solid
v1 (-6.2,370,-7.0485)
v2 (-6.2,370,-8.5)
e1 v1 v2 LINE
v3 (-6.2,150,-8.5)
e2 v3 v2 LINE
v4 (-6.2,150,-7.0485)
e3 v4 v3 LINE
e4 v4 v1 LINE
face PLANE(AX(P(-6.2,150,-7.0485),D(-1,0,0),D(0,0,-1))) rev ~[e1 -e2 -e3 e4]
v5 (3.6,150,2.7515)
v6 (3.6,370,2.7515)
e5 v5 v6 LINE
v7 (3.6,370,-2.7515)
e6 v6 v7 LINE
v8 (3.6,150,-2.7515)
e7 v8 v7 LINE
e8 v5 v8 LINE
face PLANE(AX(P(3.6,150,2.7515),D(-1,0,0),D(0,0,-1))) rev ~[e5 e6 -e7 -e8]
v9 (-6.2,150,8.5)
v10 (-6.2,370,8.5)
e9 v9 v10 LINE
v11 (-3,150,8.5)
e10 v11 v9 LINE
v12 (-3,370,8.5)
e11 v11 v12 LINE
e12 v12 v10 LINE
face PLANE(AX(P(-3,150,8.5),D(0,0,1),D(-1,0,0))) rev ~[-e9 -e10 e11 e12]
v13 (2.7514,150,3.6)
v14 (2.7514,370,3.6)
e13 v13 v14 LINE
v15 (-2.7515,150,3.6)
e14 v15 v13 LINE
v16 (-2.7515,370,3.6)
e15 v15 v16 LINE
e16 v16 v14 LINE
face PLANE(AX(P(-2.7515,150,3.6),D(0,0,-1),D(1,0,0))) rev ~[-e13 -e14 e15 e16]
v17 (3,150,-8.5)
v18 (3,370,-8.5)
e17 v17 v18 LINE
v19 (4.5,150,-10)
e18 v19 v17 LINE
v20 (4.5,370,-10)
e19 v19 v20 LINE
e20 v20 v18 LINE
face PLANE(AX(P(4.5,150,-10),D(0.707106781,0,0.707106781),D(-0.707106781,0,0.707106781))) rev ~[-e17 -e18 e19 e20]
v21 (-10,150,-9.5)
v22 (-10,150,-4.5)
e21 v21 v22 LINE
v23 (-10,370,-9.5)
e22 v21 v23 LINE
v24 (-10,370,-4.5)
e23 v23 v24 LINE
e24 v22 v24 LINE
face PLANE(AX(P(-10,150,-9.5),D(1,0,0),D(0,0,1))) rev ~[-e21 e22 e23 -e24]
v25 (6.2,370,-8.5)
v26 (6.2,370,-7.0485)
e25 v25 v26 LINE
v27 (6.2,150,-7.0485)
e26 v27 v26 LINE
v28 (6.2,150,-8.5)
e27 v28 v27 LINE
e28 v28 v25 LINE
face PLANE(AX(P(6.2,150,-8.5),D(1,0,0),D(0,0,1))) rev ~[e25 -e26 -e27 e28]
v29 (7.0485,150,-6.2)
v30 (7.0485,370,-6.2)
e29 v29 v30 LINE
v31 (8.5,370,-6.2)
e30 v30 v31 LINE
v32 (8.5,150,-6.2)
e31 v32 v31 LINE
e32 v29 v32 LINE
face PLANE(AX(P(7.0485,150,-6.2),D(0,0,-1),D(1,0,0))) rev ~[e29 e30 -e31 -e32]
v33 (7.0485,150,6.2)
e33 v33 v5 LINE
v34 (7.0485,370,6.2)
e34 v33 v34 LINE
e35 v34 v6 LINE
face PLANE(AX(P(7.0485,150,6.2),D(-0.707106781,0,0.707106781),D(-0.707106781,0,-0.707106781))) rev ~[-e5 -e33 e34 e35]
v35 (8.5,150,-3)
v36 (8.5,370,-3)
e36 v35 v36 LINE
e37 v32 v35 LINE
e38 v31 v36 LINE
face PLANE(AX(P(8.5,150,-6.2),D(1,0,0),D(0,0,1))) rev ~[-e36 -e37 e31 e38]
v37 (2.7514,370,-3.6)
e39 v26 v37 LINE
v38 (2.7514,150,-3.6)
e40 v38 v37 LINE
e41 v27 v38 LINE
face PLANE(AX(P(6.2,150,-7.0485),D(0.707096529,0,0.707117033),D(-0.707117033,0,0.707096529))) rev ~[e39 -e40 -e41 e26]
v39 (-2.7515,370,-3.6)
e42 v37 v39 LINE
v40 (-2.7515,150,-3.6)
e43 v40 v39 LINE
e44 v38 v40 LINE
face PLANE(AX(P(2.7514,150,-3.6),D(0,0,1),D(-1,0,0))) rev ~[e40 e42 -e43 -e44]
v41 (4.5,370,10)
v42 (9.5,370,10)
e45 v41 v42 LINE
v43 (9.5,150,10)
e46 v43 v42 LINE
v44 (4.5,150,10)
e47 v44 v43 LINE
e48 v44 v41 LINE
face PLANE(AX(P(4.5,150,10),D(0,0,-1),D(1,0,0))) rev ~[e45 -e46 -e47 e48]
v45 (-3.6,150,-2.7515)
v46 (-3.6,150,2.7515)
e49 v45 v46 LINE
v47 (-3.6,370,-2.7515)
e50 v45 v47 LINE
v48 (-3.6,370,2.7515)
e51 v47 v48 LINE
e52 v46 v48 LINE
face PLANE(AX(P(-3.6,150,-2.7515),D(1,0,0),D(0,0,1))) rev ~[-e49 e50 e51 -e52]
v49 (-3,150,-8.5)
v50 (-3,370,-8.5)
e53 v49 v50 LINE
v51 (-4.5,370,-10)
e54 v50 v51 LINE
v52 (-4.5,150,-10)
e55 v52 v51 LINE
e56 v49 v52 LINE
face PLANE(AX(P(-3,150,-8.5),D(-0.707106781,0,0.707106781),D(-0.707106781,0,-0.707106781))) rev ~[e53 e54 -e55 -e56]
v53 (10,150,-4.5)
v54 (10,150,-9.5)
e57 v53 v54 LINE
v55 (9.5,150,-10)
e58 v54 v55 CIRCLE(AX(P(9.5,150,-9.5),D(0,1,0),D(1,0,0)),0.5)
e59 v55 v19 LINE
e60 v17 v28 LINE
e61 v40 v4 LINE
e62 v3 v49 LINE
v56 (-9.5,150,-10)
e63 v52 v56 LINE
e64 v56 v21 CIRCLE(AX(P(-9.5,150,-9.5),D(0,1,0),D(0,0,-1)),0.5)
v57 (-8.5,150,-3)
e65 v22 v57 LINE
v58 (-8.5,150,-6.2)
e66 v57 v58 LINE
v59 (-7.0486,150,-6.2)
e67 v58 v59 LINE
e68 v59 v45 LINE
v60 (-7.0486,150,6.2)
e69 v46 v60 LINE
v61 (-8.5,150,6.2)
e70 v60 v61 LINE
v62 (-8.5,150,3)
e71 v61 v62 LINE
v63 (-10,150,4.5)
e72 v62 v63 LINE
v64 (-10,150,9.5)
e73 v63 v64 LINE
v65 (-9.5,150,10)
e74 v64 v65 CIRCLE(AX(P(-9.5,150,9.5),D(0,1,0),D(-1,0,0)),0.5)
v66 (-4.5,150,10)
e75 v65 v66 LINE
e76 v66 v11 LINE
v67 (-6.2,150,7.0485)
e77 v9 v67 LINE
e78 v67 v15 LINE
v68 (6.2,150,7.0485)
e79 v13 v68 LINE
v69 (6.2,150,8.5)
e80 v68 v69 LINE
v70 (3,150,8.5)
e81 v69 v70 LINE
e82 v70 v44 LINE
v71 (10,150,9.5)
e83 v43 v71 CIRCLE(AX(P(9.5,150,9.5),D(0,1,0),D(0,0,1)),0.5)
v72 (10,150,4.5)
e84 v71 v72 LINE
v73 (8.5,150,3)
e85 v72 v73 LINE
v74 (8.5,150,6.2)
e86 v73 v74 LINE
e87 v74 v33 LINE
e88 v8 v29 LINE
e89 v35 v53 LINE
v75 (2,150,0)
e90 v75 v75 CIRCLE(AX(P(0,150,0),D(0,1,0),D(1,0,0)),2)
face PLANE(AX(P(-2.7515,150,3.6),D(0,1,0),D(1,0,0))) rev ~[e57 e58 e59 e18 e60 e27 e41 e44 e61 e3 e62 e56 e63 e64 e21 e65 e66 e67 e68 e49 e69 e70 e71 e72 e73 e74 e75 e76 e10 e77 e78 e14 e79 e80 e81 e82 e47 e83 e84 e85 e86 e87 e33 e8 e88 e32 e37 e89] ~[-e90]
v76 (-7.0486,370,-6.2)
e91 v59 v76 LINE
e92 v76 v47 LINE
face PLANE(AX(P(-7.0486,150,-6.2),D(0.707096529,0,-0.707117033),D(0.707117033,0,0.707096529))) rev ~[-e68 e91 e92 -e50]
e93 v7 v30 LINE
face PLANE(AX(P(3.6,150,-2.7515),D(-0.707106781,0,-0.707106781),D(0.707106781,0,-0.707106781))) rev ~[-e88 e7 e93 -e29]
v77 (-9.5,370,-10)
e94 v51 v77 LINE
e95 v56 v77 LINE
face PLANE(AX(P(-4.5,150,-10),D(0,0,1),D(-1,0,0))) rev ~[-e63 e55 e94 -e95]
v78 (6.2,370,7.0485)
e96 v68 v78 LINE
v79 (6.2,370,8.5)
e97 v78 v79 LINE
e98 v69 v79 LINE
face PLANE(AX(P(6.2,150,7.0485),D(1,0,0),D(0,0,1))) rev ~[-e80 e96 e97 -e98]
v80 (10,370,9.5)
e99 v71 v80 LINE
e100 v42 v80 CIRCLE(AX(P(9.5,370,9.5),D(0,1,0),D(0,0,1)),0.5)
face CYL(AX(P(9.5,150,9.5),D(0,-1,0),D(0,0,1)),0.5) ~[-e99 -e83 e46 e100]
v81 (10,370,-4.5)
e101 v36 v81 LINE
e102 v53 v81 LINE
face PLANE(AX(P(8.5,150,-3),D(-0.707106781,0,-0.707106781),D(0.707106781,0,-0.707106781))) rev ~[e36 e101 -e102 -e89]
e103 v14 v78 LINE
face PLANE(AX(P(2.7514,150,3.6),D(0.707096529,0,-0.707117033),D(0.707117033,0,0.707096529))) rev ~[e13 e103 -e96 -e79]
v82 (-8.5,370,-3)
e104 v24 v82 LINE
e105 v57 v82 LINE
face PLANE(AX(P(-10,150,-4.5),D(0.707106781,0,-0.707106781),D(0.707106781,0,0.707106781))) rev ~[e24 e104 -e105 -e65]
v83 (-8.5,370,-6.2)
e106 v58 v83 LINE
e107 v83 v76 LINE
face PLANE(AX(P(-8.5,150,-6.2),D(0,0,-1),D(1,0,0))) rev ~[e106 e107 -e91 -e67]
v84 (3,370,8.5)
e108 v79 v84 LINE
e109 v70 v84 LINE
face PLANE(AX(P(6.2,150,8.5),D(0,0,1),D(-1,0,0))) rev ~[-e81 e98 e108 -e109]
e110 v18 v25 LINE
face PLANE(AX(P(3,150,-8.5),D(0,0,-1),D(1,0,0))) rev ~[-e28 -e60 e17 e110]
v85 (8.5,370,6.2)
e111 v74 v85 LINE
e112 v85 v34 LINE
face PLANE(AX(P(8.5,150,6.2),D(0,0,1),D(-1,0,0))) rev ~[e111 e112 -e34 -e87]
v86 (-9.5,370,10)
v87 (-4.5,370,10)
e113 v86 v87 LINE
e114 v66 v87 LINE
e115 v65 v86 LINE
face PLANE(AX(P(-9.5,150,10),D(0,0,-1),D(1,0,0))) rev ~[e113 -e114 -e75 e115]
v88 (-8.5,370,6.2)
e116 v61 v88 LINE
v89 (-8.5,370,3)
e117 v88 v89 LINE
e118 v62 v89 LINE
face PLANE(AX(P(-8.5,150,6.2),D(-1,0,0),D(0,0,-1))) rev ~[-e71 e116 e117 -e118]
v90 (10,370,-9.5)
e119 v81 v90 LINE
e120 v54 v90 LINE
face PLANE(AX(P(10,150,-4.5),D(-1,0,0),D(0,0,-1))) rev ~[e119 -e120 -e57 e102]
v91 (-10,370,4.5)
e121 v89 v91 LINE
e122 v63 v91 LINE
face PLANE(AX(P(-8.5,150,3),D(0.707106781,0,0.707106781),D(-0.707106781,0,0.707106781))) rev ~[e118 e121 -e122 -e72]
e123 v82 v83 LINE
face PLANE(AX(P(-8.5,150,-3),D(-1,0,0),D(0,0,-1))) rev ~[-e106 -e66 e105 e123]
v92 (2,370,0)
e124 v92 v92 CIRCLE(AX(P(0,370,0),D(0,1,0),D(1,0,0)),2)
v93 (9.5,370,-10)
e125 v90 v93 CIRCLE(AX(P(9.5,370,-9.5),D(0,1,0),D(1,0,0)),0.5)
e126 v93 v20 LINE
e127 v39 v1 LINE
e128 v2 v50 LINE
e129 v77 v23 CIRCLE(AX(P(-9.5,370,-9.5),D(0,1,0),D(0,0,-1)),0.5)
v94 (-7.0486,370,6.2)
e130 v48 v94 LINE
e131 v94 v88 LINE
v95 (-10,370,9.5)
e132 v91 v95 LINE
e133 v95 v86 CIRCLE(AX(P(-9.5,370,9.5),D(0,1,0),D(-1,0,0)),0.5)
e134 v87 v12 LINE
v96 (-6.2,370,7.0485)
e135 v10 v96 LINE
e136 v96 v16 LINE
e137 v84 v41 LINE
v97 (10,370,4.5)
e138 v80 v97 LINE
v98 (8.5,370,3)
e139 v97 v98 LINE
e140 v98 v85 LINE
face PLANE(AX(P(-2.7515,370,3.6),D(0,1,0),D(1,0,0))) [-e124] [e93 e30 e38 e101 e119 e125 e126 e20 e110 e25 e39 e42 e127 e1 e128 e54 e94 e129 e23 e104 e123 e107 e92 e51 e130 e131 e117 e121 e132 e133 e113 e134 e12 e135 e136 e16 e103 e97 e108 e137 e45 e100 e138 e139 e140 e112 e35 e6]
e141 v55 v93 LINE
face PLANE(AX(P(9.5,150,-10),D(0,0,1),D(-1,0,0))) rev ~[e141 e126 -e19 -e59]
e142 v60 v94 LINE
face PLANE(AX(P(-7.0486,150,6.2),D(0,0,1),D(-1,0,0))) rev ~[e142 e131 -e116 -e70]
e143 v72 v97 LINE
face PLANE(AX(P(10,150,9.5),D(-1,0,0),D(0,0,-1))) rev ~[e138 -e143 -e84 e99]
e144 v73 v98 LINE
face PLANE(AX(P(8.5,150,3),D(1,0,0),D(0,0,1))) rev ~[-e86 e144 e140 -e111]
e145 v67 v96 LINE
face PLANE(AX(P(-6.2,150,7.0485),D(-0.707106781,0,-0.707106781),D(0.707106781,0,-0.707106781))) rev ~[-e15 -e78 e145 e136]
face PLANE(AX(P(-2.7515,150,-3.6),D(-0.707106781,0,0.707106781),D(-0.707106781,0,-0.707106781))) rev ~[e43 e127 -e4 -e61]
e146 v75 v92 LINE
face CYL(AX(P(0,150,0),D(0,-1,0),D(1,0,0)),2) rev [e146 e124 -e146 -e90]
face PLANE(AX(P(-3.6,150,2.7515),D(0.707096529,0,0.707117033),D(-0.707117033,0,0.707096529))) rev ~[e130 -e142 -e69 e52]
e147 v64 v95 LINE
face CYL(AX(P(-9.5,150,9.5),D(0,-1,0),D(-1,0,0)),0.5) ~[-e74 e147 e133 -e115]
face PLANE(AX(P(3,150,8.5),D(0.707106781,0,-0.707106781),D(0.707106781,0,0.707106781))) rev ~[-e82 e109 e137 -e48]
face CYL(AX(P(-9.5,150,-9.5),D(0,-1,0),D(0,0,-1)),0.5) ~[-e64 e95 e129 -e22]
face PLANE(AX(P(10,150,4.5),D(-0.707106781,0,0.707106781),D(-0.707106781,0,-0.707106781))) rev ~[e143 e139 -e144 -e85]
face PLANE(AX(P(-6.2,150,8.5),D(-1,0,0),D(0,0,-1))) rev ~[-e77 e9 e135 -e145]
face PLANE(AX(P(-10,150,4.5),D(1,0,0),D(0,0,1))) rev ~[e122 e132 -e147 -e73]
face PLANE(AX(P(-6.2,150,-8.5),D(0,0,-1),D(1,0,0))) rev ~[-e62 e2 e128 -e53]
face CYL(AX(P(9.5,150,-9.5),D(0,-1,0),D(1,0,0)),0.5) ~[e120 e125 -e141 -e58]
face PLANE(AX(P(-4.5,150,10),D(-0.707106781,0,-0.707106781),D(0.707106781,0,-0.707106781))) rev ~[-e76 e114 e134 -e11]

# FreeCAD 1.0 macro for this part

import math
import FreeCAD as App
import Part
import Sketcher
from FreeCAD import Vector
Q = App.Units.Quantity

doc = App.newDocument("Part")
params = doc.addObject("Spreadsheet::Sheet", "Params")
for row, (alias, value) in enumerate([
    ("sketch1_diameter", "4 mm"),
    ("sketch1_radius", "0.5 mm"),
    ("sketch1_width", "5 mm"),
    ("sketch1_width2", "3.2 mm"),
    ("pad1_length", "220 mm"),
], start=1):
    params.set(f"A{row}", alias)
    params.set(f"B{row}", "=" + value)
    params.setAlias(f"B{row}", alias)

body = doc.addObject("PartDesign::Body", "Body")

# Sketch on XZ plane
sketch1 = body.newObject("Sketcher::SketchObject", "Sketch")
sketch1.AttachmentSupport = (doc.getObject("XZ_Plane"), [""])
sketch1.MapMode = "FlatFace"
sketch1.AttachmentOffset = App.Placement(Vector(0, 0, -150), App.Rotation())
sketch1.addGeometry([
    Part.LineSegment(Vector(-4.5, -10, 0), Vector(-9.5, -10, 0)),  # 0
    Part.ArcOfCircle(Part.Circle(Vector(-9.5, -9.5, 0), Vector(0, 0, 1), 0.5), math.radians(180), math.radians(270)),  # 1
    Part.LineSegment(Vector(-10, -9.5, 0), Vector(-10, -4.5, 0)),  # 2
    Part.LineSegment(Vector(-10, -4.5, 0), Vector(-8.5, -3, 0)),  # 3
    Part.LineSegment(Vector(-8.5, -3, 0), Vector(-8.5, -6.2, 0)),  # 4
    Part.LineSegment(Vector(-8.5, -6.2, 0), Vector(-7, -6.2, 0)),  # 5
    Part.LineSegment(Vector(-7, -6.2, 0), Vector(-3.6, -2.8, 0)),  # 6
    Part.LineSegment(Vector(-3.6, -2.8, 0), Vector(-3.6, 2.8, 0)),  # 7
    Part.LineSegment(Vector(-3.6, 2.8, 0), Vector(-7, 6.2, 0)),  # 8
    Part.LineSegment(Vector(-7, 6.2, 0), Vector(-8.5, 6.2, 0)),  # 9
    Part.LineSegment(Vector(-8.5, 6.2, 0), Vector(-8.5, 3, 0)),  # 10
    Part.LineSegment(Vector(-8.5, 3, 0), Vector(-10, 4.5, 0)),  # 11
    Part.LineSegment(Vector(-10, 4.5, 0), Vector(-10, 9.5, 0)),  # 12
    Part.ArcOfCircle(Part.Circle(Vector(-9.5, 9.5, 0), Vector(0, 0, 1), 0.5), math.radians(90), math.radians(180)),  # 13
    Part.LineSegment(Vector(-9.5, 10, 0), Vector(-4.5, 10, 0)),  # 14
    Part.LineSegment(Vector(-4.5, 10, 0), Vector(-3, 8.5, 0)),  # 15
    Part.LineSegment(Vector(-3, 8.5, 0), Vector(-6.2, 8.5, 0)),  # 16
    Part.LineSegment(Vector(-6.2, 8.5, 0), Vector(-6.2, 7, 0)),  # 17
    Part.LineSegment(Vector(-6.2, 7, 0), Vector(-2.8, 3.6, 0)),  # 18
    Part.LineSegment(Vector(-2.8, 3.6, 0), Vector(2.8, 3.6, 0)),  # 19
    Part.LineSegment(Vector(2.8, 3.6, 0), Vector(6.2, 7, 0)),  # 20
    Part.LineSegment(Vector(6.2, 7, 0), Vector(6.2, 8.5, 0)),  # 21
    Part.LineSegment(Vector(6.2, 8.5, 0), Vector(3, 8.5, 0)),  # 22
    Part.LineSegment(Vector(3, 8.5, 0), Vector(4.5, 10, 0)),  # 23
    Part.LineSegment(Vector(4.5, 10, 0), Vector(9.5, 10, 0)),  # 24
    Part.ArcOfCircle(Part.Circle(Vector(9.5, 9.5, 0), Vector(0, 0, 1), 0.5), math.radians(0), math.radians(90)),  # 25
    Part.LineSegment(Vector(10, 9.5, 0), Vector(10, 4.5, 0)),  # 26
    Part.LineSegment(Vector(10, 4.5, 0), Vector(8.5, 3, 0)),  # 27
    Part.LineSegment(Vector(8.5, 3, 0), Vector(8.5, 6.2, 0)),  # 28
    Part.LineSegment(Vector(8.5, 6.2, 0), Vector(7, 6.2, 0)),  # 29
    Part.LineSegment(Vector(7, 6.2, 0), Vector(3.6, 2.8, 0)),  # 30
    Part.LineSegment(Vector(3.6, 2.8, 0), Vector(3.6, -2.8, 0)),  # 31
    Part.LineSegment(Vector(3.6, -2.8, 0), Vector(7, -6.2, 0)),  # 32
    Part.LineSegment(Vector(7, -6.2, 0), Vector(8.5, -6.2, 0)),  # 33
    Part.LineSegment(Vector(8.5, -6.2, 0), Vector(8.5, -3, 0)),  # 34
    Part.LineSegment(Vector(8.5, -3, 0), Vector(10, -4.5, 0)),  # 35
    Part.LineSegment(Vector(10, -4.5, 0), Vector(10, -9.5, 0)),  # 36
    Part.ArcOfCircle(Part.Circle(Vector(9.5, -9.5, 0), Vector(0, 0, 1), 0.5), math.radians(-90), math.radians(0)),  # 37
    Part.LineSegment(Vector(9.5, -10, 0), Vector(4.5, -10, 0)),  # 38
    Part.LineSegment(Vector(4.5, -10, 0), Vector(3, -8.5, 0)),  # 39
    Part.LineSegment(Vector(3, -8.5, 0), Vector(6.2, -8.5, 0)),  # 40
    Part.LineSegment(Vector(6.2, -8.5, 0), Vector(6.2, -7, 0)),  # 41
    Part.LineSegment(Vector(6.2, -7, 0), Vector(2.8, -3.6, 0)),  # 42
    Part.LineSegment(Vector(2.8, -3.6, 0), Vector(-2.8, -3.6, 0)),  # 43
    Part.LineSegment(Vector(-2.8, -3.6, 0), Vector(-6.2, -7, 0)),  # 44
    Part.LineSegment(Vector(-6.2, -7, 0), Vector(-6.2, -8.5, 0)),  # 45
    Part.LineSegment(Vector(-6.2, -8.5, 0), Vector(-3, -8.5, 0)),  # 46
    Part.LineSegment(Vector(-3, -8.5, 0), Vector(-4.5, -10, 0)),  # 47
    Part.Circle(Vector(0, 0, 0), Vector(0, 0, 1), 2),  # 48
], False)
sketch1.addConstraint([
    Sketcher.Constraint("Tangent", 0, 2, 1, 2),
    Sketcher.Constraint("Tangent", 1, 1, 2, 1),
    Sketcher.Constraint("Coincident", 2, 2, 3, 1),
    Sketcher.Constraint("Coincident", 3, 2, 4, 1),
    Sketcher.Constraint("Coincident", 4, 2, 5, 1),
    Sketcher.Constraint("Coincident", 5, 2, 6, 1),
    Sketcher.Constraint("Coincident", 6, 2, 7, 1),
    Sketcher.Constraint("Coincident", 7, 2, 8, 1),
    Sketcher.Constraint("Coincident", 8, 2, 9, 1),
    Sketcher.Constraint("Coincident", 9, 2, 10, 1),
    Sketcher.Constraint("Coincident", 10, 2, 11, 1),
    Sketcher.Constraint("Coincident", 11, 2, 12, 1),
    Sketcher.Constraint("Tangent", 12, 2, 13, 2),
    Sketcher.Constraint("Tangent", 13, 1, 14, 1),
    Sketcher.Constraint("Coincident", 14, 2, 15, 1),
    Sketcher.Constraint("Coincident", 15, 2, 16, 1),
    Sketcher.Constraint("Coincident", 16, 2, 17, 1),
    Sketcher.Constraint("Coincident", 17, 2, 18, 1),
    Sketcher.Constraint("Coincident", 18, 2, 19, 1),
    Sketcher.Constraint("Coincident", 19, 2, 20, 1),
    Sketcher.Constraint("Coincident", 20, 2, 21, 1),
    Sketcher.Constraint("Coincident", 21, 2, 22, 1),
    Sketcher.Constraint("Coincident", 22, 2, 23, 1),
    Sketcher.Constraint("Coincident", 23, 2, 24, 1),
    Sketcher.Constraint("Tangent", 24, 2, 25, 2),
    Sketcher.Constraint("Tangent", 25, 1, 26, 1),
    Sketcher.Constraint("Coincident", 26, 2, 27, 1),
    Sketcher.Constraint("Coincident", 27, 2, 28, 1),
    Sketcher.Constraint("Coincident", 28, 2, 29, 1),
    Sketcher.Constraint("Coincident", 29, 2, 30, 1),
    Sketcher.Constraint("Coincident", 30, 2, 31, 1),
    Sketcher.Constraint("Coincident", 31, 2, 32, 1),
    Sketcher.Constraint("Coincident", 32, 2, 33, 1),
    Sketcher.Constraint("Coincident", 33, 2, 34, 1),
    Sketcher.Constraint("Coincident", 34, 2, 35, 1),
    Sketcher.Constraint("Coincident", 35, 2, 36, 1),
    Sketcher.Constraint("Tangent", 36, 2, 37, 2),
    Sketcher.Constraint("Tangent", 37, 1, 38, 1),
    Sketcher.Constraint("Coincident", 38, 2, 39, 1),
    Sketcher.Constraint("Coincident", 39, 2, 40, 1),
    Sketcher.Constraint("Coincident", 40, 2, 41, 1),
    Sketcher.Constraint("Coincident", 41, 2, 42, 1),
    Sketcher.Constraint("Coincident", 42, 2, 43, 1),
    Sketcher.Constraint("Coincident", 43, 2, 44, 1),
    Sketcher.Constraint("Coincident", 44, 2, 45, 1),
    Sketcher.Constraint("Coincident", 45, 2, 46, 1),
    Sketcher.Constraint("Coincident", 46, 2, 47, 1),
    Sketcher.Constraint("Coincident", 47, 2, 0, 1),
    Sketcher.Constraint("Horizontal", 0),
    Sketcher.Constraint("Vertical", 2),
    Sketcher.Constraint("Vertical", 4),
    Sketcher.Constraint("Horizontal", 5),
    Sketcher.Constraint("Vertical", 7),
    Sketcher.Constraint("Horizontal", 9),
    Sketcher.Constraint("Vertical", 10),
    Sketcher.Constraint("Vertical", 12),
    Sketcher.Constraint("Horizontal", 14),
    Sketcher.Constraint("Horizontal", 16),
    Sketcher.Constraint("Vertical", 17),
    Sketcher.Constraint("Horizontal", 19),
    Sketcher.Constraint("Vertical", 21),
    Sketcher.Constraint("Horizontal", 22),
    Sketcher.Constraint("Horizontal", 24),
    Sketcher.Constraint("Vertical", 26),
    Sketcher.Constraint("Vertical", 28),
    Sketcher.Constraint("Horizontal", 29),
    Sketcher.Constraint("Vertical", 31),
    Sketcher.Constraint("Horizontal", 33),
    Sketcher.Constraint("Vertical", 34),
    Sketcher.Constraint("Vertical", 36),
    Sketcher.Constraint("Horizontal", 38),
    Sketcher.Constraint("Horizontal", 40),
    Sketcher.Constraint("Vertical", 41),
    Sketcher.Constraint("Horizontal", 43),
    Sketcher.Constraint("Vertical", 45),
    Sketcher.Constraint("Horizontal", 46),
    Sketcher.Constraint("Coincident", 48, 3, -1, 1),
    Sketcher.Constraint("Equal", 1, 13),
    Sketcher.Constraint("Equal", 13, 25),
    Sketcher.Constraint("Equal", 25, 37),
    Sketcher.Constraint("Symmetric", 1, 3, 25, 3, -1, 1),
    Sketcher.Constraint("Symmetric", 13, 3, 37, 3, -1, 1),
    Sketcher.Constraint("Symmetric", 3, 2, 27, 2, -1, 1),
    Sketcher.Constraint("Symmetric", 5, 2, 29, 2, -1, 1),
    Sketcher.Constraint("Symmetric", 6, 2, 30, 2, -1, 1),
    Sketcher.Constraint("Symmetric", 8, 2, 32, 2, -1, 1),
    Sketcher.Constraint("Symmetric", 10, 2, 34, 2, -1, 1),
    Sketcher.Constraint("Symmetric", 15, 2, 39, 2, -1, 1),
    Sketcher.Constraint("Symmetric", 17, 2, 41, 2, -1, 1),
    Sketcher.Constraint("Symmetric", 18, 2, 42, 2, -1, 1),
    Sketcher.Constraint("Symmetric", 20, 2, 44, 2, -1, 1),
    Sketcher.Constraint("Symmetric", 22, 2, 46, 2, -1, 1),
    Sketcher.Constraint("Symmetric", 13, 3, 25, 3, -2),
    Sketcher.Constraint("Symmetric", 17, 2, 20, 2, -2),
    Sketcher.Constraint("Symmetric", 15, 2, 22, 2, -2),
    Sketcher.Constraint("Symmetric", 10, 2, 27, 2, -2),
    Sketcher.Constraint("Symmetric", 8, 2, 29, 2, -2),
    Sketcher.Constraint("Parallel", 3, 6),
    Sketcher.Constraint("Perpendicular", 6, 8),
    Sketcher.Constraint("Parallel", 8, 11),
    Sketcher.Constraint("Parallel", 11, 15),
    Sketcher.Constraint("Parallel", 15, 18),
    Sketcher.Constraint("Perpendicular", 18, 20),
    Sketcher.Constraint("Parallel", 20, 23),
    Sketcher.Constraint("Parallel", 23, 27),
    Sketcher.Constraint("Perpendicular", 30, 32),
    Sketcher.Constraint("Parallel", 32, 35),
    Sketcher.Constraint("Parallel", 35, 39),
    Sketcher.Constraint("Perpendicular", 42, 44),
    Sketcher.Constraint("Parallel", 44, 47),
    Sketcher.Constraint("Horizontal", 11, 2, 26, 2),
    Sketcher.Constraint("Equal", 38, 2),
    Sketcher.Constraint("Equal", 46, 4),
    Sketcher.Constraint("Equal", 43, 7),
    Sketcher.Constraint("Equal", 33, 17),
    Sketcher.Constraint("Equal", 11, 15),
    Sketcher.Constraint("Equal", 8, 18),
    Sketcher.Constraint("Diameter", 48, Q("4 mm")),
    Sketcher.Constraint("Radius", 1, Q("0.5 mm")),
    Sketcher.Constraint("DistanceX", 0, 2, 0, 1, Q("5 mm")),
    Sketcher.Constraint("DistanceX", 16, 2, 16, 1, Q("3.2 mm")),
    Sketcher.Constraint("DistanceY", 0, 2, -1, 1, Q("10 mm")),
    Sketcher.Constraint("DistanceY", 3, 2, -1, 1, Q("3 mm")),
    Sketcher.Constraint("DistanceX", 6, 2, -1, 1, Q("3.6 mm")),
    Sketcher.Constraint("DistanceX", 19, 1, 19, 2, Q("5.503 mm")),
])
sketch1.setExpression("Constraints[117]", "Params.sketch1_diameter")
sketch1.setExpression("Constraints[118]", "Params.sketch1_radius")
sketch1.setExpression("Constraints[119]", "Params.sketch1_width")
sketch1.setExpression("Constraints[120]", "Params.sketch1_width2")
pad1 = body.newObject("PartDesign::Pad", "Pad")
pad1.Profile = sketch1
pad1.setExpression("Length", "Params.pad1_length")
pad1.Reversed = True

doc.recompute()
